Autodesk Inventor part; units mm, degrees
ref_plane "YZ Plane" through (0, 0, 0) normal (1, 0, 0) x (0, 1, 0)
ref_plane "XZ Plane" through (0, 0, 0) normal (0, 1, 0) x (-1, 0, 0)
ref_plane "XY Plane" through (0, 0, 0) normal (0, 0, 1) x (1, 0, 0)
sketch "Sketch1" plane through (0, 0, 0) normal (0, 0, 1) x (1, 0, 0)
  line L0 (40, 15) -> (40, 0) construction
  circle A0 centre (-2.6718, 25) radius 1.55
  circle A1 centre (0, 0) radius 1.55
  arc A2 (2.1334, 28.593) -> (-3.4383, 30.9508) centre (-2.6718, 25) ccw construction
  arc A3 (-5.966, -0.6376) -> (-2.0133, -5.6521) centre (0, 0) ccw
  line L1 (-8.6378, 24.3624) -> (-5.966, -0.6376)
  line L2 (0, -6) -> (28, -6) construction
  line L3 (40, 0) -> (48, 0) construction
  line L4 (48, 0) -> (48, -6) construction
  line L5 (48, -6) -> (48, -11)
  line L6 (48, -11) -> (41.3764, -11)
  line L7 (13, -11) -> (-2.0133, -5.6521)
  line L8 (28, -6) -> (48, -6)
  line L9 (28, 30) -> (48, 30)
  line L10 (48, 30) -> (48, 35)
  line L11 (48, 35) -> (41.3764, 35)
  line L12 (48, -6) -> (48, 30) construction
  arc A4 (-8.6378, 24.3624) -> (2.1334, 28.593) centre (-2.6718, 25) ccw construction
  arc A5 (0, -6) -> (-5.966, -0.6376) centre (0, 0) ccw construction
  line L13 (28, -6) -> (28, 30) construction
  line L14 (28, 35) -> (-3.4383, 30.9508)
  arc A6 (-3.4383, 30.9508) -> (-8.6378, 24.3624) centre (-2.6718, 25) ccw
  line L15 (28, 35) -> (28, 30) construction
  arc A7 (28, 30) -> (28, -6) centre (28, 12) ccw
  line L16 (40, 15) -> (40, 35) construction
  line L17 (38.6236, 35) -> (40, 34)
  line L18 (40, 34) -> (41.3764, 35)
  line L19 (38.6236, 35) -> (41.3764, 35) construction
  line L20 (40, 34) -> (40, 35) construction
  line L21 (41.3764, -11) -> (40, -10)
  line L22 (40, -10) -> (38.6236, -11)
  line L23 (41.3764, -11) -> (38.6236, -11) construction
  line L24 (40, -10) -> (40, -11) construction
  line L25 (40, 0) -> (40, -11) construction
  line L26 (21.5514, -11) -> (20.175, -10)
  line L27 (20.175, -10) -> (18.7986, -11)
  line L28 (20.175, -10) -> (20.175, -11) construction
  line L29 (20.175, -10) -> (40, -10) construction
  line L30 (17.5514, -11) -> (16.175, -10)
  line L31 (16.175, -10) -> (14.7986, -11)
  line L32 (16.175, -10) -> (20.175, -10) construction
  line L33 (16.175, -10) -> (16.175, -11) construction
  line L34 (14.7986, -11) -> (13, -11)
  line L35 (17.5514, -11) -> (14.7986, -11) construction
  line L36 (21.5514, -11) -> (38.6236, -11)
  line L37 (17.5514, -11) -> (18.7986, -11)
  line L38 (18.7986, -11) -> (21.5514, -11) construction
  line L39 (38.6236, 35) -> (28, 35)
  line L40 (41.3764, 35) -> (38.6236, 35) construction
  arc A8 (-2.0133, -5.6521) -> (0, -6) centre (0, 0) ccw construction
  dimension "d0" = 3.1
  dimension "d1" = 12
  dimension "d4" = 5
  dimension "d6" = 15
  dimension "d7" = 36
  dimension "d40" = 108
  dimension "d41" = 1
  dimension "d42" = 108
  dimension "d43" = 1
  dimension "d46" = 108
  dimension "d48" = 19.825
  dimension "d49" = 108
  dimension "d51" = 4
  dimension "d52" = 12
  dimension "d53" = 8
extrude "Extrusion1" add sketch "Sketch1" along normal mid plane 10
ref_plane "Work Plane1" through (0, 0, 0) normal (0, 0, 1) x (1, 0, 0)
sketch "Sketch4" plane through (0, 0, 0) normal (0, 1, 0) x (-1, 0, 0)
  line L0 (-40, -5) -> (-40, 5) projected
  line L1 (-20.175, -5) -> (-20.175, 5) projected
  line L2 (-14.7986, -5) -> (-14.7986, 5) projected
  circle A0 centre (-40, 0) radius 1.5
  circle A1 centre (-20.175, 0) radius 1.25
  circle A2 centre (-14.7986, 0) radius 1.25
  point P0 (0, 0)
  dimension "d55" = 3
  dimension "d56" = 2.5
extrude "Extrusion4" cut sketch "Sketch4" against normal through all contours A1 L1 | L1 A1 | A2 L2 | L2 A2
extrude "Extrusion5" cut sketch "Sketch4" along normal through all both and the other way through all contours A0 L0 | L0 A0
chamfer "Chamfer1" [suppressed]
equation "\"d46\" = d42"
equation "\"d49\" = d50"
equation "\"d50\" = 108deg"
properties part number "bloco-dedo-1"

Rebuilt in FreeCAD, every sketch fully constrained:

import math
import FreeCAD as App
import Part
import Sketcher

V = App.Vector
Q = App.Units.Quantity

doc = App.newDocument("Part")
body = doc.addObject("PartDesign::Body", "Body")

sketch1 = doc.addObject("Sketcher::SketchObject", "Sketch")
body.addObject(sketch1)
sketch1.AttachmentSupport = (doc.XY_Plane, [""])
sketch1.MapMode = "FlatFace"
sketch1.addGeometry([
    Part.LineSegment(V(-8.6378, 24.3624, 0), V(-5.966, -0.6376, 0)),
    Part.ArcOfCircle(Part.Circle(V(0, 0, 0), V(0, 0, 1), 5.999968), math.radians(-173.899824), math.radians(-109.606097)),
    Part.LineSegment(V(-2.0133, -5.6521, 0), V(13, -11, 0)),
    Part.LineSegment(V(13, -11, 0), V(14.7986, -11, 0)),
    Part.LineSegment(V(14.7986, -11, 0), V(16.175, -10, 0)),
    Part.LineSegment(V(16.175, -10, 0), V(17.5514, -11, 0)),
    Part.LineSegment(V(17.5514, -11, 0), V(18.7986, -11, 0)),
    Part.LineSegment(V(18.7986, -11, 0), V(20.175, -10, 0)),
    Part.LineSegment(V(20.175, -10, 0), V(21.5514, -11, 0)),
    Part.LineSegment(V(21.5514, -11, 0), V(38.6236, -11, 0)),
    Part.LineSegment(V(38.6236, -11, 0), V(40, -10, 0)),
    Part.LineSegment(V(40, -10, 0), V(41.3764, -11, 0)),
    Part.LineSegment(V(41.3764, -11, 0), V(48, -11, 0)),
    Part.LineSegment(V(48, -11, 0), V(48, -6, 0)),
    Part.LineSegment(V(48, -6, 0), V(28, -6, 0)),
    Part.ArcOfCircle(Part.Circle(V(28, 12, 0), V(0, 0, 1), 18), math.radians(90), math.radians(270)),
    Part.LineSegment(V(28, 30, 0), V(48, 30, 0)),
    Part.LineSegment(V(48, 30, 0), V(48, 35, 0)),
    Part.LineSegment(V(48, 35, 0), V(41.3764, 35, 0)),
    Part.LineSegment(V(41.3764, 35, 0), V(40, 34, 0)),
    Part.LineSegment(V(40, 34, 0), V(38.6236, 35, 0)),
    Part.LineSegment(V(38.6236, 35, 0), V(28, 35, 0)),
    Part.LineSegment(V(28, 35, 0), V(-3.4383, 30.9508, 0)),
    Part.ArcOfCircle(Part.Circle(V(-2.6718, 25, 0), V(0, 0, 1), 5.999974), math.radians(97.33964), math.radians(186.100176)),
    Part.Circle(V(0, 0, 0), V(0, 0, 1), 1.55),
    Part.Circle(V(-2.6718, 25, 0), V(0, 0, 1), 1.55),
], False)
sketch1.addConstraint([
    Sketcher.Constraint("Tangent", 0, 2, 1, 1),
    Sketcher.Constraint("Tangent", 1, 2, 2, 1),
    Sketcher.Constraint("Coincident", 2, 2, 3, 1),
    Sketcher.Constraint("Coincident", 3, 2, 4, 1),
    Sketcher.Constraint("Coincident", 4, 2, 5, 1),
    Sketcher.Constraint("Coincident", 5, 2, 6, 1),
    Sketcher.Constraint("Coincident", 6, 2, 7, 1),
    Sketcher.Constraint("Coincident", 7, 2, 8, 1),
    Sketcher.Constraint("Coincident", 8, 2, 9, 1),
    Sketcher.Constraint("Coincident", 9, 2, 10, 1),
    Sketcher.Constraint("Coincident", 10, 2, 11, 1),
    Sketcher.Constraint("Coincident", 11, 2, 12, 1),
    Sketcher.Constraint("Coincident", 12, 2, 13, 1),
    Sketcher.Constraint("Coincident", 13, 2, 14, 1),
    Sketcher.Constraint("Tangent", 14, 2, 15, 2),
    Sketcher.Constraint("Tangent", 15, 1, 16, 1),
    Sketcher.Constraint("Coincident", 16, 2, 17, 1),
    Sketcher.Constraint("Coincident", 17, 2, 18, 1),
    Sketcher.Constraint("Coincident", 18, 2, 19, 1),
    Sketcher.Constraint("Coincident", 19, 2, 20, 1),
    Sketcher.Constraint("Coincident", 20, 2, 21, 1),
    Sketcher.Constraint("Coincident", 21, 2, 22, 1),
    Sketcher.Constraint("Tangent", 22, 2, 23, 1),
    Sketcher.Constraint("Tangent", 23, 2, 0, 1),
    Sketcher.Constraint("Horizontal", 3),
    Sketcher.Constraint("Horizontal", 6),
    Sketcher.Constraint("Horizontal", 9),
    Sketcher.Constraint("Horizontal", 12),
    Sketcher.Constraint("Vertical", 13),
    Sketcher.Constraint("Horizontal", 14),
    Sketcher.Constraint("Horizontal", 16),
    Sketcher.Constraint("Vertical", 17),
    Sketcher.Constraint("Horizontal", 18),
    Sketcher.Constraint("Horizontal", 21),
    Sketcher.Constraint("Coincident", 1, 3, -1, 1),
    Sketcher.Constraint("Coincident", 24, 3, -1, 1),
    Sketcher.Constraint("Coincident", 25, 3, 23, 3),
    Sketcher.Constraint("Equal", 1, 23),
    Sketcher.Constraint("Equal", 24, 25),
    Sketcher.Constraint("Parallel", 4, 7),
    Sketcher.Constraint("Parallel", 5, 8),
    Sketcher.Constraint("Parallel", 7, 10),
    Sketcher.Constraint("Parallel", 8, 11),
    Sketcher.Constraint("Parallel", 10, 19),
    Sketcher.Constraint("Parallel", 11, 20),
    Sketcher.Constraint("Horizontal", 3, 2, 5, 2),
    Sketcher.Constraint("Horizontal", 4, 2, 7, 2),
    Sketcher.Constraint("Horizontal", 6, 2, 8, 2),
    Sketcher.Constraint("Horizontal", 7, 2, 10, 2),
    Sketcher.Constraint("Horizontal", 9, 2, 11, 2),
    Sketcher.Constraint("Horizontal", 18, 2, 20, 2),
    Sketcher.Constraint("Vertical", 13, 2, 16, 2),
    Sketcher.Constraint("Vertical", 11, 2, 18, 2),
    Sketcher.Constraint("Vertical", 10, 2, 19, 2),
    Sketcher.Constraint("Vertical", 9, 2, 20, 2),
    Sketcher.Constraint("Vertical", 15, 1, 21, 2),
    Sketcher.Constraint("Equal", 13, 17),
    Sketcher.Constraint("Radius", 1, 6.0),
    Sketcher.Constraint("Radius", 15, 18.0),
    Sketcher.Constraint("Diameter", 24, 3.1),
    Sketcher.Constraint("DistanceY", 13, 1, 13, 2, 5.0),
    Sketcher.Constraint("Angle", 4, Q("35.9996 deg")),
    Sketcher.Constraint("DistanceY", -1, 1, 15, 3, 12.0),
    Sketcher.Constraint("DistanceX", 2, 2, 15, 3, 15.0),
    Sketcher.Constraint("DistanceY", 3, 2, 4, 2, 1.0),
    Sketcher.Constraint("DistanceX", 3, 2, 6, 2, 4.0),
    Sketcher.Constraint("DistanceX", 10, 2, 12, 2, 8.0),
    Sketcher.Constraint("DistanceY", 23, 3, 15, 1, 5.0),
    Sketcher.Constraint("DistanceX", 15, 1, 19, 2, 12.0),
    Sketcher.Constraint("DistanceX", -1, 1, 15, 3, 28.0),
    Sketcher.Constraint("Angle", 0, Q("-83.8998 deg")),
    Sketcher.Constraint("DistanceX", 6, 2, 9, 2, 19.825),
])
pad1 = doc.addObject("PartDesign::Pad", "Pad")
body.addObject(pad1)
pad1.Profile = sketch1
pad1.Length = 10
pad1.Midplane = True

sketch2 = doc.addObject("Sketcher::SketchObject", "Sketch001")
body.addObject(sketch2)
sketch2.AttachmentSupport = (doc.XZ_Plane, [""])
sketch2.MapMode = "FlatFace"
sketch2.addGeometry([
    Part.Circle(V(20.175, 0, 0), V(0, 0, 1), 1.25),
    Part.Circle(V(14.7986, 0, 0), V(0, 0, 1), 1.25),
], False)
sketch2.addConstraint([
    Sketcher.Constraint("Equal", 0, 1),
    Sketcher.Constraint("PointOnObject", 0, 3, -1),
    Sketcher.Constraint("PointOnObject", 1, 3, -1),
    Sketcher.Constraint("Diameter", 0, 2.5),
    Sketcher.Constraint("DistanceX", -1, 1, 0, 3, 20.175),
    Sketcher.Constraint("DistanceX", -1, 1, 1, 3, 14.7986),
])
pocket1 = doc.addObject("PartDesign::Pocket", "Pocket")
body.addObject(pocket1)
pocket1.Profile = sketch2
pocket1.Type = "ThroughAll"
pocket1.Reversed = True

sketch3 = doc.addObject("Sketcher::SketchObject", "Sketch002")
body.addObject(sketch3)
sketch3.AttachmentSupport = (doc.XZ_Plane, [""])
sketch3.MapMode = "FlatFace"
sketch3.addGeometry(Part.Circle(V(40, 0, 0), V(0, 0, 1), 1.5), False)
sketch3.addConstraint([
    Sketcher.Constraint("PointOnObject", 0, 3, -1),
    Sketcher.Constraint("Diameter", 0, 3.0),
    Sketcher.Constraint("DistanceX", -1, 1, 0, 3, 40.0),
])
pocket2 = doc.addObject("PartDesign::Pocket", "Pocket001")
body.addObject(pocket2)
pocket2.Profile = sketch3
pocket2.Type = "ThroughAll"
pocket2.Midplane = True

doc.recompute()
